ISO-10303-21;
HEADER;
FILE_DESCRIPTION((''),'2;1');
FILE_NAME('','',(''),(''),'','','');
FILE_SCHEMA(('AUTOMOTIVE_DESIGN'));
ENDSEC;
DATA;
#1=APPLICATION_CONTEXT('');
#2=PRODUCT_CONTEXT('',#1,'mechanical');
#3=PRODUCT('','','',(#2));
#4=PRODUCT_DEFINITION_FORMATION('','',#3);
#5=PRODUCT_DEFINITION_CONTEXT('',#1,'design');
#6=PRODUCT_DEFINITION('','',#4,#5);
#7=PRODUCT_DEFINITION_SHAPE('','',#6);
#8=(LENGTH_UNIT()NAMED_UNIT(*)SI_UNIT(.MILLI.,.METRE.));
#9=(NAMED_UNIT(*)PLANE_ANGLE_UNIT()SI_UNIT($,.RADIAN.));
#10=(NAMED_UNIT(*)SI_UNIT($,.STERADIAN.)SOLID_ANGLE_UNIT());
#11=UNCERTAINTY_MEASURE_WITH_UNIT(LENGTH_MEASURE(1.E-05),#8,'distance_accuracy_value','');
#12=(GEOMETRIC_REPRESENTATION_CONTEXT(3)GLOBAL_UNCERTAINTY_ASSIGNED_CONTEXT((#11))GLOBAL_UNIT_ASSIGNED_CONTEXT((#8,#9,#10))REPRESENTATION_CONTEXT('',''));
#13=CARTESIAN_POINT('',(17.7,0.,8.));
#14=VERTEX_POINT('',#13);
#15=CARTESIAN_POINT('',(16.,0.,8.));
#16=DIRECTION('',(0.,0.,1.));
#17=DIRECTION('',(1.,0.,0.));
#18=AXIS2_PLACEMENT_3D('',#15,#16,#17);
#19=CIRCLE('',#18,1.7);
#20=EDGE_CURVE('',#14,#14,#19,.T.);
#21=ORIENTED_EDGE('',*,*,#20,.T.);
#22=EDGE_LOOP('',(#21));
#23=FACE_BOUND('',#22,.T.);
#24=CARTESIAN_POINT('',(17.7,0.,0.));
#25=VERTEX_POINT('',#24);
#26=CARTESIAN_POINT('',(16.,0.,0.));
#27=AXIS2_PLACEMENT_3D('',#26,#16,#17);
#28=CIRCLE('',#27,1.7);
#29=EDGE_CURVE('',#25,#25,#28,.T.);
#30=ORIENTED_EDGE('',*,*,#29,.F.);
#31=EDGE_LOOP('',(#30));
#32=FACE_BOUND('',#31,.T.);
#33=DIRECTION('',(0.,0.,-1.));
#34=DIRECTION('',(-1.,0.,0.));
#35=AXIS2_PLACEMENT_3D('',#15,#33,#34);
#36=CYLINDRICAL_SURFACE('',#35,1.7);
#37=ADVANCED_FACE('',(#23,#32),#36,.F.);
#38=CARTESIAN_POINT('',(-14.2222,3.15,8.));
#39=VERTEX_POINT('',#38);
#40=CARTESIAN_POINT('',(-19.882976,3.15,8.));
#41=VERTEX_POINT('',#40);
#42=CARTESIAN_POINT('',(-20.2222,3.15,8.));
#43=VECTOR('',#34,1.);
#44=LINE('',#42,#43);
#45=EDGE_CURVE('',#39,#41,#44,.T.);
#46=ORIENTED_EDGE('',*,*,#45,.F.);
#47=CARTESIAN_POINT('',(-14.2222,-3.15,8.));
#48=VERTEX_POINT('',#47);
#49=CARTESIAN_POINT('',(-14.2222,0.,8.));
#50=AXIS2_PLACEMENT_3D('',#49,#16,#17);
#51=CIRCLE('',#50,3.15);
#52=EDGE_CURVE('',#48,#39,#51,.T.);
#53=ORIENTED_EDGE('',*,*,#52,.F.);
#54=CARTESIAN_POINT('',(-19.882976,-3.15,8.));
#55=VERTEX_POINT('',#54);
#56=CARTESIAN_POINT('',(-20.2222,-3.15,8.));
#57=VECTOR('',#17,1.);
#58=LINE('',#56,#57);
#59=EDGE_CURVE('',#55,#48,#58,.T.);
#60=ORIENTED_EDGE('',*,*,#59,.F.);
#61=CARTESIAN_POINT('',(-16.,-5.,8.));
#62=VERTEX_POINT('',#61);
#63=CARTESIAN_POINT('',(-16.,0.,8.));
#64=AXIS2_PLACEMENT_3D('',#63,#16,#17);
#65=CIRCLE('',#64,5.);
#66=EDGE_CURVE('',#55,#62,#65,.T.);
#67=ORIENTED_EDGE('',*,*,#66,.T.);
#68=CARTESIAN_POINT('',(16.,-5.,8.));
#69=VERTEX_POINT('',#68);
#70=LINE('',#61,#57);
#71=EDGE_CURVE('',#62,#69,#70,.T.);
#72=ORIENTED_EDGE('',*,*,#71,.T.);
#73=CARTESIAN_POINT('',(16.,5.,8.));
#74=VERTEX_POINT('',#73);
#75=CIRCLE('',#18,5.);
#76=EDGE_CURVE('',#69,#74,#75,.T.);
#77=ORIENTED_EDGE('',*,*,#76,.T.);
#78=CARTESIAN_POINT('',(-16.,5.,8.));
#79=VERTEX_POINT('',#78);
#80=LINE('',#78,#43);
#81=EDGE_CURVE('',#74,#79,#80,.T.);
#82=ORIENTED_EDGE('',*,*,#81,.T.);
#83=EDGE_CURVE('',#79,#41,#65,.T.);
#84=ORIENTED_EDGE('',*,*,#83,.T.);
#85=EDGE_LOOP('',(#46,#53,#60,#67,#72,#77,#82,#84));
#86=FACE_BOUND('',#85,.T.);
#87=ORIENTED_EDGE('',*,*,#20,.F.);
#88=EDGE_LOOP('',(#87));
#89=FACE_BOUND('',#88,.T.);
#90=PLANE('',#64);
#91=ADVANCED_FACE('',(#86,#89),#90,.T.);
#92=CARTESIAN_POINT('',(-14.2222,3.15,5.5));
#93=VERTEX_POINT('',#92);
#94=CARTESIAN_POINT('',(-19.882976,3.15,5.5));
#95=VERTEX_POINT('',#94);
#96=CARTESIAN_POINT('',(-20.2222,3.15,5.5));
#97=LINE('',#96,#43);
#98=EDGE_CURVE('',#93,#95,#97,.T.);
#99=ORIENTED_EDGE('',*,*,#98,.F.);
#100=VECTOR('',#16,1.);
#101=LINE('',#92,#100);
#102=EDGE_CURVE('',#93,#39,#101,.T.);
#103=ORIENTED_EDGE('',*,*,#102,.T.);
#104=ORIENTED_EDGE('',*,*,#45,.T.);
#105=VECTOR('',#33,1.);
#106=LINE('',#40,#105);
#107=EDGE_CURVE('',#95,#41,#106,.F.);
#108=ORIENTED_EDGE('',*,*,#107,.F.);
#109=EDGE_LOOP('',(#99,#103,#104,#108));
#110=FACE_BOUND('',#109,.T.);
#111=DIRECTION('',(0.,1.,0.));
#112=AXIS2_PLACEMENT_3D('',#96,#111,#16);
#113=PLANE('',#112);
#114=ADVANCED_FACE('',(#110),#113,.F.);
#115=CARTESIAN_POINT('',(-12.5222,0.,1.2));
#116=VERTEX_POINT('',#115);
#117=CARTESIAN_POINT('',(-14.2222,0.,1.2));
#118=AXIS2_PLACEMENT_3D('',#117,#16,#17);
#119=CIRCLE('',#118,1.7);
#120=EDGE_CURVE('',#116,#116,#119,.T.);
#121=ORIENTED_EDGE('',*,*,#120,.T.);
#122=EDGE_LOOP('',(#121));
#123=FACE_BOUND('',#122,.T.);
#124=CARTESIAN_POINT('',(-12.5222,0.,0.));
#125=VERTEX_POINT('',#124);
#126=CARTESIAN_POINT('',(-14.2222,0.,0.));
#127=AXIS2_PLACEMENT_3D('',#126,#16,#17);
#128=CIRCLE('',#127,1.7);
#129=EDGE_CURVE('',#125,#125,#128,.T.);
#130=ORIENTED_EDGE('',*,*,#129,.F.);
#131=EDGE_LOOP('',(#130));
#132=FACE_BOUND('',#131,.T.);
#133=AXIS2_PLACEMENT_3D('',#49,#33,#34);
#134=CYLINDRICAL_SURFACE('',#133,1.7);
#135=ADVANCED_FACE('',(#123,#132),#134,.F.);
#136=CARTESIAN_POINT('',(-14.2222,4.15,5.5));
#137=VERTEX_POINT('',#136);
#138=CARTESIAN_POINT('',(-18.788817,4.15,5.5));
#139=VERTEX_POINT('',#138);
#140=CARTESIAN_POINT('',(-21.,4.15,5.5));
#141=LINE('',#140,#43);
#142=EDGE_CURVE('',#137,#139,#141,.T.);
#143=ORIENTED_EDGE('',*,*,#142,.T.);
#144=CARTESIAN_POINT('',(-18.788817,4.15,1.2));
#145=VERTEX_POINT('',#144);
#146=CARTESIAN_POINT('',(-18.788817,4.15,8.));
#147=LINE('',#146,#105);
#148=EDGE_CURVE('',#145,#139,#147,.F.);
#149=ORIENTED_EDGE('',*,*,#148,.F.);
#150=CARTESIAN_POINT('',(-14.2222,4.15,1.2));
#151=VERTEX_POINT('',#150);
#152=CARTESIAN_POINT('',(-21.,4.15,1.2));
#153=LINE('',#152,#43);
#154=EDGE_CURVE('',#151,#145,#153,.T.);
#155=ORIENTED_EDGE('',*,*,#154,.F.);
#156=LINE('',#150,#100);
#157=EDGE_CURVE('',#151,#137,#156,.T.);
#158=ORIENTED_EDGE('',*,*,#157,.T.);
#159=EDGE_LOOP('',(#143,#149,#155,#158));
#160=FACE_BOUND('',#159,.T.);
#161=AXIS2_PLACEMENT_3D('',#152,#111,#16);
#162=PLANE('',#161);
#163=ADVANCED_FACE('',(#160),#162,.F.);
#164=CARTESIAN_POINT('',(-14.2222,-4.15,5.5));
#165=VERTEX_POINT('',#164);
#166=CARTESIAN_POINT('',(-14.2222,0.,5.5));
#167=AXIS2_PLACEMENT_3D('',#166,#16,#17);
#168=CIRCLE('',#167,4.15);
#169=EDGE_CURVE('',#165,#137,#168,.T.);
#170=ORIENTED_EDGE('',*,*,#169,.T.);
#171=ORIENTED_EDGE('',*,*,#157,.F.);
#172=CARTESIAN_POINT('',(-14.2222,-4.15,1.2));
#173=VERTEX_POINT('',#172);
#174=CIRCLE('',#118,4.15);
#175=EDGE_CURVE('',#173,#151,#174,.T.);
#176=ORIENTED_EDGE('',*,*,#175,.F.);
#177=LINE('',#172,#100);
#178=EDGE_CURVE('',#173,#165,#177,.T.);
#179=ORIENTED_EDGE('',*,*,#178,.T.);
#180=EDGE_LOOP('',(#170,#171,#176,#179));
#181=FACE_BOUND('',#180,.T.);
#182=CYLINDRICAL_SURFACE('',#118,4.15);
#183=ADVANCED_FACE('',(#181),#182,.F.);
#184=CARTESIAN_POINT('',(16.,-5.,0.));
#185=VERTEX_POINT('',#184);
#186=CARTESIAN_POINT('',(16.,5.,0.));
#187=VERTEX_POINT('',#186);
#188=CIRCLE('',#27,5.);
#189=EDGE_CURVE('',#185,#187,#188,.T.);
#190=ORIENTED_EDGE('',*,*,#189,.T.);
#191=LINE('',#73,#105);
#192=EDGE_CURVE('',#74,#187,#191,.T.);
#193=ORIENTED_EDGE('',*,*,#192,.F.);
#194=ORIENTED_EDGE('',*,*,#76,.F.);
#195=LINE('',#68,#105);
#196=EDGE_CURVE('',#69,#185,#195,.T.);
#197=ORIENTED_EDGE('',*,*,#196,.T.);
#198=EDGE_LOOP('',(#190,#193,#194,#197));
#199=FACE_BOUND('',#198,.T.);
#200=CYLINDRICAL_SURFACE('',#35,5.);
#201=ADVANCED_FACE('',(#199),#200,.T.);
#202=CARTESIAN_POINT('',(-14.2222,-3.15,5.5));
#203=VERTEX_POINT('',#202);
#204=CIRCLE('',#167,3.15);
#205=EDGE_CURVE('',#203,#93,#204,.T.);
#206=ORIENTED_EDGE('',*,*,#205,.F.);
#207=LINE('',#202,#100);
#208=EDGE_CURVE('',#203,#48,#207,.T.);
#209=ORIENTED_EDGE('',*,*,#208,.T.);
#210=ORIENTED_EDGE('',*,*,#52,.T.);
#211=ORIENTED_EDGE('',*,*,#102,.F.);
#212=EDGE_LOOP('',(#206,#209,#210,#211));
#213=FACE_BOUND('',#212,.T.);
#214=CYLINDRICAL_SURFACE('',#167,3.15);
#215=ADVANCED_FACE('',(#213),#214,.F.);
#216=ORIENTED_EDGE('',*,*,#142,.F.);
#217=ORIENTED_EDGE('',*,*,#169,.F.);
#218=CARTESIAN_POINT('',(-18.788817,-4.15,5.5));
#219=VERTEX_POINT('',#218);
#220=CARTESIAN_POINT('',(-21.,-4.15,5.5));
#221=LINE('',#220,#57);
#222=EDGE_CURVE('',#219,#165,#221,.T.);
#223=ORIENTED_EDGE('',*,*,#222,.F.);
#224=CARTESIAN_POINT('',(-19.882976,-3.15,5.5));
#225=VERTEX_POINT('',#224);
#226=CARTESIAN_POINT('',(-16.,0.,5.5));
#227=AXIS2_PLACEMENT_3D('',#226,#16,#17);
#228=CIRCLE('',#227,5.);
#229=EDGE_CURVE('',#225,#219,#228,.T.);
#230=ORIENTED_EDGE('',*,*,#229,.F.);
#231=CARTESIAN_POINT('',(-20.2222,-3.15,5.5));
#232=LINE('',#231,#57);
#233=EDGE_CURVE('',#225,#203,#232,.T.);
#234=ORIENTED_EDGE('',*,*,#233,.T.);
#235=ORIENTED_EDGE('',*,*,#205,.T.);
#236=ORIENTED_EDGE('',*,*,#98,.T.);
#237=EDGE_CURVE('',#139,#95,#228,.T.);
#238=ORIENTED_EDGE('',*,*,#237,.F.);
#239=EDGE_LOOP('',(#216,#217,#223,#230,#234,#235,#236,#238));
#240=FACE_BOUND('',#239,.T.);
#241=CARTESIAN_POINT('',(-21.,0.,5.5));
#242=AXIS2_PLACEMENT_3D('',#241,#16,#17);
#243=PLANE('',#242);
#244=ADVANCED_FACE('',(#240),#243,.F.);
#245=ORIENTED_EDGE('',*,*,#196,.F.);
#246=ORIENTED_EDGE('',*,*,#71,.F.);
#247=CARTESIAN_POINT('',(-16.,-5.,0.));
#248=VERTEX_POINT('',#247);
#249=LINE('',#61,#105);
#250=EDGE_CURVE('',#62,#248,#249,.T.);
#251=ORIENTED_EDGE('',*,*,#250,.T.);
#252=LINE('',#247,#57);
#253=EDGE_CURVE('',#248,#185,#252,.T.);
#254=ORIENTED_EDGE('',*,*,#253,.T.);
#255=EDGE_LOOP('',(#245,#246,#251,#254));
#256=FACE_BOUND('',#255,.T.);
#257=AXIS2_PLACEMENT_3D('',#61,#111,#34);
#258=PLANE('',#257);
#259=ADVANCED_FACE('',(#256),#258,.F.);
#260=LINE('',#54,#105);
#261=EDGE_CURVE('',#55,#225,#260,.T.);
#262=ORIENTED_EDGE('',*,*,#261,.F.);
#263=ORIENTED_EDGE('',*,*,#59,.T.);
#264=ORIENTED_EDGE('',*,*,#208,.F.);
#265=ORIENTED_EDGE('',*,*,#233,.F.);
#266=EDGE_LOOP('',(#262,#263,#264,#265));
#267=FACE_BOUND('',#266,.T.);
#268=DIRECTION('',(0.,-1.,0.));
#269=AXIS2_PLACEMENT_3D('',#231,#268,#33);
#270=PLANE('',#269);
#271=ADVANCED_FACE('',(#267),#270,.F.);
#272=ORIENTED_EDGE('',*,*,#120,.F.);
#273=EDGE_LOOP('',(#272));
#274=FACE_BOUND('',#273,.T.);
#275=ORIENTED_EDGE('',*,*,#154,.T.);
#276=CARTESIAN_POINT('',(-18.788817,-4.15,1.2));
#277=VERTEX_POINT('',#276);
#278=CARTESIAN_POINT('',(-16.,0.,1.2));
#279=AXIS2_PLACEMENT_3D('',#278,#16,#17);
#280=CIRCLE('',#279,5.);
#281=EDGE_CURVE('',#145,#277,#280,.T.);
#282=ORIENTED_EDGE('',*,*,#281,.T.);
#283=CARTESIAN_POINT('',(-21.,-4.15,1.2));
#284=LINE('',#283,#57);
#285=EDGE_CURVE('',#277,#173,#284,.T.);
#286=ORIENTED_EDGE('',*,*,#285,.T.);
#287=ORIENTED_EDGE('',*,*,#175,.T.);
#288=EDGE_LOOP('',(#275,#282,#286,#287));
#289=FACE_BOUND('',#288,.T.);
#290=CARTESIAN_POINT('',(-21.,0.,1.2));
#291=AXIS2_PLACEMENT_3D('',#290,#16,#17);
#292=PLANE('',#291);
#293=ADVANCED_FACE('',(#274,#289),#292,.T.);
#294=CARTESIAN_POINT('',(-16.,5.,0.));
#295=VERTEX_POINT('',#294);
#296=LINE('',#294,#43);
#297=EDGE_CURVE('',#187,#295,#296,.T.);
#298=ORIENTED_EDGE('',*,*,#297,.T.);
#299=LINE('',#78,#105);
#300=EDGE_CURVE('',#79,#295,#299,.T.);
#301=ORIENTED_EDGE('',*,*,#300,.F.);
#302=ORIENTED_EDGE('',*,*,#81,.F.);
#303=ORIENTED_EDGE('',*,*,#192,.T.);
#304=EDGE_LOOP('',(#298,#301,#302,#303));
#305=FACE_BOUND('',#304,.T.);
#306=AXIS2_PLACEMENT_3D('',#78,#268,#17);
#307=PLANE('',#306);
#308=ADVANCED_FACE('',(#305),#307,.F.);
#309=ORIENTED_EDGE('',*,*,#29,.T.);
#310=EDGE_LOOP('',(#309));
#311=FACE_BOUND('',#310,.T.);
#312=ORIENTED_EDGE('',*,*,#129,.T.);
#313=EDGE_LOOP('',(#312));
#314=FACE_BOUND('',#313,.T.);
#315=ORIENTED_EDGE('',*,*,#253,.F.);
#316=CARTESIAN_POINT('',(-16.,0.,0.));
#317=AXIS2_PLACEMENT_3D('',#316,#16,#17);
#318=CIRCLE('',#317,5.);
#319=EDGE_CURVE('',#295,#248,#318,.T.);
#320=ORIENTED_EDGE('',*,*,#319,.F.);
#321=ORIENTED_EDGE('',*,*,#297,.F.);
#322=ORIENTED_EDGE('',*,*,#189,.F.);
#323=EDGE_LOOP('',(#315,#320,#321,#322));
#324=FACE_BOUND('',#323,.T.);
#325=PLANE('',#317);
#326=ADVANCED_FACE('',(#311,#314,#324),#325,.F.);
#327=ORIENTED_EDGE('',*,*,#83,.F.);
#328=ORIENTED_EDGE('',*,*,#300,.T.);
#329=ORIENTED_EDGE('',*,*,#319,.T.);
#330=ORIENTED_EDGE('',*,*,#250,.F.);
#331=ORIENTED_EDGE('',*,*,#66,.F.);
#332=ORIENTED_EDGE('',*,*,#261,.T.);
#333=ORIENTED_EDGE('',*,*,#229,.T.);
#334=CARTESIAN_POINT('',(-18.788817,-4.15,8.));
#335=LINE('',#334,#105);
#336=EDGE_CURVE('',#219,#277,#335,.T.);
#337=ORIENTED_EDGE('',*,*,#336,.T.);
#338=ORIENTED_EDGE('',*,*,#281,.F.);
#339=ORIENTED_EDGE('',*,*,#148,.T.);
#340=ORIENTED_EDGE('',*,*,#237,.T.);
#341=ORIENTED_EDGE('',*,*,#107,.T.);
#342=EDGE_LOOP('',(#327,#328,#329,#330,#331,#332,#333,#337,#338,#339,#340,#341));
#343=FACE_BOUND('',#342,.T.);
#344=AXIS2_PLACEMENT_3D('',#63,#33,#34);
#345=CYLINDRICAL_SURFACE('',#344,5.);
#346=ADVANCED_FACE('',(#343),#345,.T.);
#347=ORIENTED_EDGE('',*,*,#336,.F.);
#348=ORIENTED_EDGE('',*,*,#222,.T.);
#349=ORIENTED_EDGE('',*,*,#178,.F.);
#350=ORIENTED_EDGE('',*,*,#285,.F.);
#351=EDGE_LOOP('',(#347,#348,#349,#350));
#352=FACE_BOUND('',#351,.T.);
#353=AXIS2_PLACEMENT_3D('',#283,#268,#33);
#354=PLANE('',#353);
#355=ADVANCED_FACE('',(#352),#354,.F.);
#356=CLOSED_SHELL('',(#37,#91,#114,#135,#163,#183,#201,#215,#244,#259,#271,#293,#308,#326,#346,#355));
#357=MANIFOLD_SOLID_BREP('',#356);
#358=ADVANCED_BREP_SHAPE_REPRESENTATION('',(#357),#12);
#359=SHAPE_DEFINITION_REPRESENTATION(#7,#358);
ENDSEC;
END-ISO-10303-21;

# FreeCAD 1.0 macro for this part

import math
import FreeCAD as App
import Part
import Sketcher

doc = App.newDocument("Part")
body = doc.addObject("PartDesign::Body", "Body")

# Sketch on XY plane
sketch1 = body.newObject("Sketcher::SketchObject", "Sketch")
sketch1.AttachmentSupport = (doc.getObject("XY_Plane"), [""])
sketch1.MapMode = "FlatFace"
sketch1.addGeometry(Part.LineSegment(App.Vector(16, 5, 0), App.Vector(-16, 5, 0)), False)
sketch1.addGeometry(Part.ArcOfCircle(Part.Circle(App.Vector(-16, 0, 0), App.Vector(0, 0, 1), 5), math.radians(90), math.radians(270)), False)
sketch1.addGeometry(Part.LineSegment(App.Vector(-16, -5, 0), App.Vector(16, -5, 0)), False)
sketch1.addGeometry(Part.ArcOfCircle(Part.Circle(App.Vector(16, 0, 0), App.Vector(0, 0, 1), 5), math.radians(-90), math.radians(90)), False)
sketch1.addGeometry(Part.Circle(App.Vector(16, 0, 0), App.Vector(0, 0, 1), 1.7), False)
sketch1.addGeometry(Part.Circle(App.Vector(-14.2222, 0, 0), App.Vector(0, 0, 1), 1.7), False)
sketch1.addConstraint(Sketcher.Constraint("Tangent", 0, 2, 1, 1))
sketch1.addConstraint(Sketcher.Constraint("Tangent", 1, 2, 2, 1))
sketch1.addConstraint(Sketcher.Constraint("Tangent", 2, 2, 3, 1))
sketch1.addConstraint(Sketcher.Constraint("Tangent", 3, 2, 0, 1))
sketch1.addConstraint(Sketcher.Constraint("Horizontal", 0))
sketch1.addConstraint(Sketcher.Constraint("Horizontal", 2))
sketch1.addConstraint(Sketcher.Constraint("Coincident", 4, 3, 3, 3))
sketch1.addConstraint(Sketcher.Constraint("Equal", 4, 5))
sketch1.addConstraint(Sketcher.Constraint("Symmetric", 1, 3, 3, 3, -1, 1))
sketch1.addConstraint(Sketcher.Constraint("PointOnObject", 5, 3, -1))
sketch1.addConstraint(Sketcher.Constraint("Radius", 1, 5.0))
sketch1.addConstraint(Sketcher.Constraint("Diameter", 4, 3.4))
sketch1.addConstraint(Sketcher.Constraint("DistanceX", 0, 2, 0, 1, 32.0))
sketch1.addConstraint(Sketcher.Constraint("DistanceX", 5, 3, -1, 1, 14.2222))
pad1 = body.newObject("PartDesign::Pad", "Pad")
pad1.Profile = sketch1
pad1.Length = 8

# Sketch on XY plane
sketch2 = body.newObject("Sketcher::SketchObject", "Sketch001")
sketch2.AttachmentSupport = (doc.getObject("XY_Plane"), [""])
sketch2.MapMode = "FlatFace"
sketch2.AttachmentOffset = App.Placement(App.Vector(0, 0, 8), App.Rotation())
sketch2.addGeometry(Part.LineSegment(App.Vector(-14.2222, 3.15, 0), App.Vector(-20.2222, 3.15, 0)), False)
sketch2.addGeometry(Part.ArcOfCircle(Part.Circle(App.Vector(-20.2222, 0, 0), App.Vector(0, 0, 1), 3.15), math.radians(90), math.radians(270)), False)
sketch2.addGeometry(Part.LineSegment(App.Vector(-20.2222, -3.15, 0), App.Vector(-14.2222, -3.15, 0)), False)
sketch2.addGeometry(Part.ArcOfCircle(Part.Circle(App.Vector(-14.2222, 0, 0), App.Vector(0, 0, 1), 3.15), math.radians(-90), math.radians(90)), False)
sketch2.addConstraint(Sketcher.Constraint("Tangent", 0, 2, 1, 1))
sketch2.addConstraint(Sketcher.Constraint("Tangent", 1, 2, 2, 1))
sketch2.addConstraint(Sketcher.Constraint("Tangent", 2, 2, 3, 1))
sketch2.addConstraint(Sketcher.Constraint("Tangent", 3, 2, 0, 1))
sketch2.addConstraint(Sketcher.Constraint("Horizontal", 0))
sketch2.addConstraint(Sketcher.Constraint("Horizontal", 2))
sketch2.addConstraint(Sketcher.Constraint("PointOnObject", 1, 3, -1))
sketch2.addConstraint(Sketcher.Constraint("DistanceX", 0, 2, 0, 1, 6.0))
sketch2.addConstraint(Sketcher.Constraint("Radius", 1, 3.15))
sketch2.addConstraint(Sketcher.Constraint("DistanceX", 1, 3, -1, 1, 20.2222))
pocket1 = body.newObject("PartDesign::Pocket", "Pocket")
pocket1.Profile = sketch2
pocket1.Length = 2.5

# Sketch on XY plane
sketch3 = body.newObject("Sketcher::SketchObject", "Sketch002")
sketch3.AttachmentSupport = (doc.getObject("XY_Plane"), [""])
sketch3.MapMode = "FlatFace"
sketch3.AttachmentOffset = App.Placement(App.Vector(0, 0, 5.5), App.Rotation())
sketch3.addGeometry(Part.LineSegment(App.Vector(-14.2222, 4.15, 0), App.Vector(-21, 4.15, 0)), False)
sketch3.addGeometry(Part.ArcOfCircle(Part.Circle(App.Vector(-21, 0, 0), App.Vector(0, 0, 1), 4.15), math.radians(90), math.radians(270)), False)
sketch3.addGeometry(Part.LineSegment(App.Vector(-21, -4.15, 0), App.Vector(-14.2222, -4.15, 0)), False)
sketch3.addGeometry(Part.ArcOfCircle(Part.Circle(App.Vector(-14.2222, 0, 0), App.Vector(0, 0, 1), 4.15), math.radians(-90), math.radians(90)), False)
sketch3.addConstraint(Sketcher.Constraint("Tangent", 0, 2, 1, 1))
sketch3.addConstraint(Sketcher.Constraint("Tangent", 1, 2, 2, 1))
sketch3.addConstraint(Sketcher.Constraint("Tangent", 2, 2, 3, 1))
sketch3.addConstraint(Sketcher.Constraint("Tangent", 3, 2, 0, 1))
sketch3.addConstraint(Sketcher.Constraint("Horizontal", 0))
sketch3.addConstraint(Sketcher.Constraint("Horizontal", 2))
sketch3.addConstraint(Sketcher.Constraint("PointOnObject", 1, 3, -1))
sketch3.addConstraint(Sketcher.Constraint("Radius", 1, 4.15))
sketch3.addConstraint(Sketcher.Constraint("DistanceX", 1, 3, -1, 1, 21.0))
sketch3.addConstraint(Sketcher.Constraint("DistanceX", 0, 2, 0, 1, 6.7778))
pocket2 = body.newObject("PartDesign::Pocket", "Pocket001")
pocket2.Profile = sketch3
pocket2.Length = 4.3

doc.recompute()
